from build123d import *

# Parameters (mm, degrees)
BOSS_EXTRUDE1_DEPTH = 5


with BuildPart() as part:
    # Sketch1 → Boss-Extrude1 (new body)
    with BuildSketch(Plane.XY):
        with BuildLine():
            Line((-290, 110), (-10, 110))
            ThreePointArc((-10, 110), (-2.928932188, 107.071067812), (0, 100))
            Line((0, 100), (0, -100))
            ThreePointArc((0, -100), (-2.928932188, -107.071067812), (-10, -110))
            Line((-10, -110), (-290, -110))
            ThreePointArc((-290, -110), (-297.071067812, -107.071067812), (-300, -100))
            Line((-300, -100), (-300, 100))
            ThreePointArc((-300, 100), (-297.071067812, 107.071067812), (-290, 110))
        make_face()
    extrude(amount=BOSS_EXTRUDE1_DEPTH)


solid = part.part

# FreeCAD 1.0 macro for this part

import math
import FreeCAD as App
import Part
import Sketcher

V = App.Vector

doc = App.newDocument("Part")
body = doc.addObject("PartDesign::Body", "Body")

# Sketch on XY plane
sketch1 = doc.addObject("Sketcher::SketchObject", "Sketch")
body.addObject(sketch1)
sketch1.AttachmentSupport = (doc.XY_Plane, [""])
sketch1.MapMode = "FlatFace"
sketch1.addGeometry(Part.LineSegment(V(-10, 110, 0), V(-290, 110, 0)), False)
sketch1.addGeometry(Part.ArcOfCircle(Part.Circle(V(-290, 100, 0), V(0, 0, 1), 10), math.radians(90), math.radians(180)), False)
sketch1.addGeometry(Part.LineSegment(V(-300, 100, 0), V(-300, -100, 0)), False)
sketch1.addGeometry(Part.ArcOfCircle(Part.Circle(V(-290, -100, 0), V(0, 0, 1), 10), math.radians(180), math.radians(270)), False)
sketch1.addGeometry(Part.LineSegment(V(-290, -110, 0), V(-10, -110, 0)), False)
sketch1.addGeometry(Part.ArcOfCircle(Part.Circle(V(-10, -100, 0), V(0, 0, 1), 10), math.radians(-90), math.radians(0)), False)
sketch1.addGeometry(Part.LineSegment(V(0, -100, 0), V(0, 100, 0)), False)
sketch1.addGeometry(Part.ArcOfCircle(Part.Circle(V(-10, 100, 0), V(0, 0, 1), 10), math.radians(0), math.radians(90)), False)
sketch1.addConstraint(Sketcher.Constraint("Tangent", 0, 2, 1, 1))
sketch1.addConstraint(Sketcher.Constraint("Tangent", 1, 2, 2, 1))
sketch1.addConstraint(Sketcher.Constraint("Tangent", 2, 2, 3, 1))
sketch1.addConstraint(Sketcher.Constraint("Tangent", 3, 2, 4, 1))
sketch1.addConstraint(Sketcher.Constraint("Tangent", 4, 2, 5, 1))
sketch1.addConstraint(Sketcher.Constraint("Tangent", 5, 2, 6, 1))
sketch1.addConstraint(Sketcher.Constraint("Tangent", 6, 2, 7, 1))
sketch1.addConstraint(Sketcher.Constraint("Tangent", 7, 2, 0, 1))
sketch1.addConstraint(Sketcher.Constraint("Horizontal", 0))
sketch1.addConstraint(Sketcher.Constraint("Vertical", 2))
sketch1.addConstraint(Sketcher.Constraint("Horizontal", 4))
sketch1.addConstraint(Sketcher.Constraint("Vertical", 6))
sketch1.addConstraint(Sketcher.Constraint("Equal", 1, 3))
sketch1.addConstraint(Sketcher.Constraint("Equal", 3, 5))
sketch1.addConstraint(Sketcher.Constraint("Equal", 5, 7))
sketch1.addConstraint(Sketcher.Constraint("Symmetric", 5, 2, 6, 2, -1, 1))
sketch1.addConstraint(Sketcher.Constraint("Radius", 1, 10.0))
sketch1.addConstraint(Sketcher.Constraint("DistanceX", 0, 2, 0, 1, 280.0))
sketch1.addConstraint(Sketcher.Constraint("DistanceY", 2, 2, 2, 1, 200.0))
pad1 = doc.addObject("PartDesign::Pad", "Pad")
body.addObject(pad1)
pad1.Profile = sketch1
pad1.Length = 5

doc.recompute()
